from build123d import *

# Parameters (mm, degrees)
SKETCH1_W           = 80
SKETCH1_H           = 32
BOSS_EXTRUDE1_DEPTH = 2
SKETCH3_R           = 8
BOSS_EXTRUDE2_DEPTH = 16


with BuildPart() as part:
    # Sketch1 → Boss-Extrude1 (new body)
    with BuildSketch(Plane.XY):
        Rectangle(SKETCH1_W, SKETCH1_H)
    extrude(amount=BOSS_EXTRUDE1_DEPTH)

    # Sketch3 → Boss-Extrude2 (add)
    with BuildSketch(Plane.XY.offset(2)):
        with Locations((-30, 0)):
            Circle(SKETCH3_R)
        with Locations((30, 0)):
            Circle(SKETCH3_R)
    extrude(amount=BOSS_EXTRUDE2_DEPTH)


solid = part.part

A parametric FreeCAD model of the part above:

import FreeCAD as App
import Part
import Sketcher
from FreeCAD import Vector


def add_polygon(sketch, points):
    """Adds a closed chain of lines whose ends are joined by coincident constraints."""
    first, n = sketch.GeometryCount, len(points)
    for a, b in zip(points, points[1:] + points[:1]):
        sketch.addGeometry(Part.LineSegment(App.Vector(*a, 0), App.Vector(*b, 0)), False)
    for i in range(n):
        sketch.addConstraint(Sketcher.Constraint("Coincident", first + i, 2, first + (i + 1) % n, 1))

doc = App.newDocument("Part")
body = doc.addObject("PartDesign::Body", "Body")

sketch1 = body.newObject("Sketcher::SketchObject", "Sketch")
sketch1.AttachmentSupport = (doc.getObject("XY_Plane"), [""])
sketch1.MapMode = "FlatFace"
add_polygon(sketch1, [(-40, 16), (-40, -16), (40, -16), (40, 16)])
sketch1.addConstraint([
    Sketcher.Constraint("Vertical", 0),
    Sketcher.Constraint("Horizontal", 1),
    Sketcher.Constraint("Vertical", 2),
    Sketcher.Constraint("Horizontal", 3),
    Sketcher.Constraint("Symmetric", 0, 2, 2, 2, -1, 1),
    Sketcher.Constraint("DistanceX", 1, 1, 1, 2, 80.0),
    Sketcher.Constraint("DistanceY", 0, 2, 0, 1, 32.0),
])
pad1 = body.newObject("PartDesign::Pad", "Pad")
pad1.Profile = sketch1
pad1.Length = 2

sketch2 = body.newObject("Sketcher::SketchObject", "Sketch001")
sketch2.AttachmentSupport = (doc.getObject("XY_Plane"), [""])
sketch2.MapMode = "FlatFace"
sketch2.AttachmentOffset = App.Placement(Vector(0, 0, 2), App.Rotation())
sketch2.addGeometry([
    Part.Circle(Vector(-30, 0, 0), Vector(0, 0, 1), 8),
    Part.Circle(Vector(30, 0, 0), Vector(0, 0, 1), 8),
], False)
sketch2.addConstraint([
    Sketcher.Constraint("Equal", 0, 1),
    Sketcher.Constraint("Symmetric", 0, 3, 1, 3, -1, 1),
    Sketcher.Constraint("PointOnObject", 0, 3, -1),
    Sketcher.Constraint("Diameter", 0, 16.0),
    Sketcher.Constraint("DistanceX", 0, 3, -1, 1, 30.0),
])
pad2 = body.newObject("PartDesign::Pad", "Pad001")
pad2.Profile = sketch2
pad2.Length = 16

doc.recompute()
